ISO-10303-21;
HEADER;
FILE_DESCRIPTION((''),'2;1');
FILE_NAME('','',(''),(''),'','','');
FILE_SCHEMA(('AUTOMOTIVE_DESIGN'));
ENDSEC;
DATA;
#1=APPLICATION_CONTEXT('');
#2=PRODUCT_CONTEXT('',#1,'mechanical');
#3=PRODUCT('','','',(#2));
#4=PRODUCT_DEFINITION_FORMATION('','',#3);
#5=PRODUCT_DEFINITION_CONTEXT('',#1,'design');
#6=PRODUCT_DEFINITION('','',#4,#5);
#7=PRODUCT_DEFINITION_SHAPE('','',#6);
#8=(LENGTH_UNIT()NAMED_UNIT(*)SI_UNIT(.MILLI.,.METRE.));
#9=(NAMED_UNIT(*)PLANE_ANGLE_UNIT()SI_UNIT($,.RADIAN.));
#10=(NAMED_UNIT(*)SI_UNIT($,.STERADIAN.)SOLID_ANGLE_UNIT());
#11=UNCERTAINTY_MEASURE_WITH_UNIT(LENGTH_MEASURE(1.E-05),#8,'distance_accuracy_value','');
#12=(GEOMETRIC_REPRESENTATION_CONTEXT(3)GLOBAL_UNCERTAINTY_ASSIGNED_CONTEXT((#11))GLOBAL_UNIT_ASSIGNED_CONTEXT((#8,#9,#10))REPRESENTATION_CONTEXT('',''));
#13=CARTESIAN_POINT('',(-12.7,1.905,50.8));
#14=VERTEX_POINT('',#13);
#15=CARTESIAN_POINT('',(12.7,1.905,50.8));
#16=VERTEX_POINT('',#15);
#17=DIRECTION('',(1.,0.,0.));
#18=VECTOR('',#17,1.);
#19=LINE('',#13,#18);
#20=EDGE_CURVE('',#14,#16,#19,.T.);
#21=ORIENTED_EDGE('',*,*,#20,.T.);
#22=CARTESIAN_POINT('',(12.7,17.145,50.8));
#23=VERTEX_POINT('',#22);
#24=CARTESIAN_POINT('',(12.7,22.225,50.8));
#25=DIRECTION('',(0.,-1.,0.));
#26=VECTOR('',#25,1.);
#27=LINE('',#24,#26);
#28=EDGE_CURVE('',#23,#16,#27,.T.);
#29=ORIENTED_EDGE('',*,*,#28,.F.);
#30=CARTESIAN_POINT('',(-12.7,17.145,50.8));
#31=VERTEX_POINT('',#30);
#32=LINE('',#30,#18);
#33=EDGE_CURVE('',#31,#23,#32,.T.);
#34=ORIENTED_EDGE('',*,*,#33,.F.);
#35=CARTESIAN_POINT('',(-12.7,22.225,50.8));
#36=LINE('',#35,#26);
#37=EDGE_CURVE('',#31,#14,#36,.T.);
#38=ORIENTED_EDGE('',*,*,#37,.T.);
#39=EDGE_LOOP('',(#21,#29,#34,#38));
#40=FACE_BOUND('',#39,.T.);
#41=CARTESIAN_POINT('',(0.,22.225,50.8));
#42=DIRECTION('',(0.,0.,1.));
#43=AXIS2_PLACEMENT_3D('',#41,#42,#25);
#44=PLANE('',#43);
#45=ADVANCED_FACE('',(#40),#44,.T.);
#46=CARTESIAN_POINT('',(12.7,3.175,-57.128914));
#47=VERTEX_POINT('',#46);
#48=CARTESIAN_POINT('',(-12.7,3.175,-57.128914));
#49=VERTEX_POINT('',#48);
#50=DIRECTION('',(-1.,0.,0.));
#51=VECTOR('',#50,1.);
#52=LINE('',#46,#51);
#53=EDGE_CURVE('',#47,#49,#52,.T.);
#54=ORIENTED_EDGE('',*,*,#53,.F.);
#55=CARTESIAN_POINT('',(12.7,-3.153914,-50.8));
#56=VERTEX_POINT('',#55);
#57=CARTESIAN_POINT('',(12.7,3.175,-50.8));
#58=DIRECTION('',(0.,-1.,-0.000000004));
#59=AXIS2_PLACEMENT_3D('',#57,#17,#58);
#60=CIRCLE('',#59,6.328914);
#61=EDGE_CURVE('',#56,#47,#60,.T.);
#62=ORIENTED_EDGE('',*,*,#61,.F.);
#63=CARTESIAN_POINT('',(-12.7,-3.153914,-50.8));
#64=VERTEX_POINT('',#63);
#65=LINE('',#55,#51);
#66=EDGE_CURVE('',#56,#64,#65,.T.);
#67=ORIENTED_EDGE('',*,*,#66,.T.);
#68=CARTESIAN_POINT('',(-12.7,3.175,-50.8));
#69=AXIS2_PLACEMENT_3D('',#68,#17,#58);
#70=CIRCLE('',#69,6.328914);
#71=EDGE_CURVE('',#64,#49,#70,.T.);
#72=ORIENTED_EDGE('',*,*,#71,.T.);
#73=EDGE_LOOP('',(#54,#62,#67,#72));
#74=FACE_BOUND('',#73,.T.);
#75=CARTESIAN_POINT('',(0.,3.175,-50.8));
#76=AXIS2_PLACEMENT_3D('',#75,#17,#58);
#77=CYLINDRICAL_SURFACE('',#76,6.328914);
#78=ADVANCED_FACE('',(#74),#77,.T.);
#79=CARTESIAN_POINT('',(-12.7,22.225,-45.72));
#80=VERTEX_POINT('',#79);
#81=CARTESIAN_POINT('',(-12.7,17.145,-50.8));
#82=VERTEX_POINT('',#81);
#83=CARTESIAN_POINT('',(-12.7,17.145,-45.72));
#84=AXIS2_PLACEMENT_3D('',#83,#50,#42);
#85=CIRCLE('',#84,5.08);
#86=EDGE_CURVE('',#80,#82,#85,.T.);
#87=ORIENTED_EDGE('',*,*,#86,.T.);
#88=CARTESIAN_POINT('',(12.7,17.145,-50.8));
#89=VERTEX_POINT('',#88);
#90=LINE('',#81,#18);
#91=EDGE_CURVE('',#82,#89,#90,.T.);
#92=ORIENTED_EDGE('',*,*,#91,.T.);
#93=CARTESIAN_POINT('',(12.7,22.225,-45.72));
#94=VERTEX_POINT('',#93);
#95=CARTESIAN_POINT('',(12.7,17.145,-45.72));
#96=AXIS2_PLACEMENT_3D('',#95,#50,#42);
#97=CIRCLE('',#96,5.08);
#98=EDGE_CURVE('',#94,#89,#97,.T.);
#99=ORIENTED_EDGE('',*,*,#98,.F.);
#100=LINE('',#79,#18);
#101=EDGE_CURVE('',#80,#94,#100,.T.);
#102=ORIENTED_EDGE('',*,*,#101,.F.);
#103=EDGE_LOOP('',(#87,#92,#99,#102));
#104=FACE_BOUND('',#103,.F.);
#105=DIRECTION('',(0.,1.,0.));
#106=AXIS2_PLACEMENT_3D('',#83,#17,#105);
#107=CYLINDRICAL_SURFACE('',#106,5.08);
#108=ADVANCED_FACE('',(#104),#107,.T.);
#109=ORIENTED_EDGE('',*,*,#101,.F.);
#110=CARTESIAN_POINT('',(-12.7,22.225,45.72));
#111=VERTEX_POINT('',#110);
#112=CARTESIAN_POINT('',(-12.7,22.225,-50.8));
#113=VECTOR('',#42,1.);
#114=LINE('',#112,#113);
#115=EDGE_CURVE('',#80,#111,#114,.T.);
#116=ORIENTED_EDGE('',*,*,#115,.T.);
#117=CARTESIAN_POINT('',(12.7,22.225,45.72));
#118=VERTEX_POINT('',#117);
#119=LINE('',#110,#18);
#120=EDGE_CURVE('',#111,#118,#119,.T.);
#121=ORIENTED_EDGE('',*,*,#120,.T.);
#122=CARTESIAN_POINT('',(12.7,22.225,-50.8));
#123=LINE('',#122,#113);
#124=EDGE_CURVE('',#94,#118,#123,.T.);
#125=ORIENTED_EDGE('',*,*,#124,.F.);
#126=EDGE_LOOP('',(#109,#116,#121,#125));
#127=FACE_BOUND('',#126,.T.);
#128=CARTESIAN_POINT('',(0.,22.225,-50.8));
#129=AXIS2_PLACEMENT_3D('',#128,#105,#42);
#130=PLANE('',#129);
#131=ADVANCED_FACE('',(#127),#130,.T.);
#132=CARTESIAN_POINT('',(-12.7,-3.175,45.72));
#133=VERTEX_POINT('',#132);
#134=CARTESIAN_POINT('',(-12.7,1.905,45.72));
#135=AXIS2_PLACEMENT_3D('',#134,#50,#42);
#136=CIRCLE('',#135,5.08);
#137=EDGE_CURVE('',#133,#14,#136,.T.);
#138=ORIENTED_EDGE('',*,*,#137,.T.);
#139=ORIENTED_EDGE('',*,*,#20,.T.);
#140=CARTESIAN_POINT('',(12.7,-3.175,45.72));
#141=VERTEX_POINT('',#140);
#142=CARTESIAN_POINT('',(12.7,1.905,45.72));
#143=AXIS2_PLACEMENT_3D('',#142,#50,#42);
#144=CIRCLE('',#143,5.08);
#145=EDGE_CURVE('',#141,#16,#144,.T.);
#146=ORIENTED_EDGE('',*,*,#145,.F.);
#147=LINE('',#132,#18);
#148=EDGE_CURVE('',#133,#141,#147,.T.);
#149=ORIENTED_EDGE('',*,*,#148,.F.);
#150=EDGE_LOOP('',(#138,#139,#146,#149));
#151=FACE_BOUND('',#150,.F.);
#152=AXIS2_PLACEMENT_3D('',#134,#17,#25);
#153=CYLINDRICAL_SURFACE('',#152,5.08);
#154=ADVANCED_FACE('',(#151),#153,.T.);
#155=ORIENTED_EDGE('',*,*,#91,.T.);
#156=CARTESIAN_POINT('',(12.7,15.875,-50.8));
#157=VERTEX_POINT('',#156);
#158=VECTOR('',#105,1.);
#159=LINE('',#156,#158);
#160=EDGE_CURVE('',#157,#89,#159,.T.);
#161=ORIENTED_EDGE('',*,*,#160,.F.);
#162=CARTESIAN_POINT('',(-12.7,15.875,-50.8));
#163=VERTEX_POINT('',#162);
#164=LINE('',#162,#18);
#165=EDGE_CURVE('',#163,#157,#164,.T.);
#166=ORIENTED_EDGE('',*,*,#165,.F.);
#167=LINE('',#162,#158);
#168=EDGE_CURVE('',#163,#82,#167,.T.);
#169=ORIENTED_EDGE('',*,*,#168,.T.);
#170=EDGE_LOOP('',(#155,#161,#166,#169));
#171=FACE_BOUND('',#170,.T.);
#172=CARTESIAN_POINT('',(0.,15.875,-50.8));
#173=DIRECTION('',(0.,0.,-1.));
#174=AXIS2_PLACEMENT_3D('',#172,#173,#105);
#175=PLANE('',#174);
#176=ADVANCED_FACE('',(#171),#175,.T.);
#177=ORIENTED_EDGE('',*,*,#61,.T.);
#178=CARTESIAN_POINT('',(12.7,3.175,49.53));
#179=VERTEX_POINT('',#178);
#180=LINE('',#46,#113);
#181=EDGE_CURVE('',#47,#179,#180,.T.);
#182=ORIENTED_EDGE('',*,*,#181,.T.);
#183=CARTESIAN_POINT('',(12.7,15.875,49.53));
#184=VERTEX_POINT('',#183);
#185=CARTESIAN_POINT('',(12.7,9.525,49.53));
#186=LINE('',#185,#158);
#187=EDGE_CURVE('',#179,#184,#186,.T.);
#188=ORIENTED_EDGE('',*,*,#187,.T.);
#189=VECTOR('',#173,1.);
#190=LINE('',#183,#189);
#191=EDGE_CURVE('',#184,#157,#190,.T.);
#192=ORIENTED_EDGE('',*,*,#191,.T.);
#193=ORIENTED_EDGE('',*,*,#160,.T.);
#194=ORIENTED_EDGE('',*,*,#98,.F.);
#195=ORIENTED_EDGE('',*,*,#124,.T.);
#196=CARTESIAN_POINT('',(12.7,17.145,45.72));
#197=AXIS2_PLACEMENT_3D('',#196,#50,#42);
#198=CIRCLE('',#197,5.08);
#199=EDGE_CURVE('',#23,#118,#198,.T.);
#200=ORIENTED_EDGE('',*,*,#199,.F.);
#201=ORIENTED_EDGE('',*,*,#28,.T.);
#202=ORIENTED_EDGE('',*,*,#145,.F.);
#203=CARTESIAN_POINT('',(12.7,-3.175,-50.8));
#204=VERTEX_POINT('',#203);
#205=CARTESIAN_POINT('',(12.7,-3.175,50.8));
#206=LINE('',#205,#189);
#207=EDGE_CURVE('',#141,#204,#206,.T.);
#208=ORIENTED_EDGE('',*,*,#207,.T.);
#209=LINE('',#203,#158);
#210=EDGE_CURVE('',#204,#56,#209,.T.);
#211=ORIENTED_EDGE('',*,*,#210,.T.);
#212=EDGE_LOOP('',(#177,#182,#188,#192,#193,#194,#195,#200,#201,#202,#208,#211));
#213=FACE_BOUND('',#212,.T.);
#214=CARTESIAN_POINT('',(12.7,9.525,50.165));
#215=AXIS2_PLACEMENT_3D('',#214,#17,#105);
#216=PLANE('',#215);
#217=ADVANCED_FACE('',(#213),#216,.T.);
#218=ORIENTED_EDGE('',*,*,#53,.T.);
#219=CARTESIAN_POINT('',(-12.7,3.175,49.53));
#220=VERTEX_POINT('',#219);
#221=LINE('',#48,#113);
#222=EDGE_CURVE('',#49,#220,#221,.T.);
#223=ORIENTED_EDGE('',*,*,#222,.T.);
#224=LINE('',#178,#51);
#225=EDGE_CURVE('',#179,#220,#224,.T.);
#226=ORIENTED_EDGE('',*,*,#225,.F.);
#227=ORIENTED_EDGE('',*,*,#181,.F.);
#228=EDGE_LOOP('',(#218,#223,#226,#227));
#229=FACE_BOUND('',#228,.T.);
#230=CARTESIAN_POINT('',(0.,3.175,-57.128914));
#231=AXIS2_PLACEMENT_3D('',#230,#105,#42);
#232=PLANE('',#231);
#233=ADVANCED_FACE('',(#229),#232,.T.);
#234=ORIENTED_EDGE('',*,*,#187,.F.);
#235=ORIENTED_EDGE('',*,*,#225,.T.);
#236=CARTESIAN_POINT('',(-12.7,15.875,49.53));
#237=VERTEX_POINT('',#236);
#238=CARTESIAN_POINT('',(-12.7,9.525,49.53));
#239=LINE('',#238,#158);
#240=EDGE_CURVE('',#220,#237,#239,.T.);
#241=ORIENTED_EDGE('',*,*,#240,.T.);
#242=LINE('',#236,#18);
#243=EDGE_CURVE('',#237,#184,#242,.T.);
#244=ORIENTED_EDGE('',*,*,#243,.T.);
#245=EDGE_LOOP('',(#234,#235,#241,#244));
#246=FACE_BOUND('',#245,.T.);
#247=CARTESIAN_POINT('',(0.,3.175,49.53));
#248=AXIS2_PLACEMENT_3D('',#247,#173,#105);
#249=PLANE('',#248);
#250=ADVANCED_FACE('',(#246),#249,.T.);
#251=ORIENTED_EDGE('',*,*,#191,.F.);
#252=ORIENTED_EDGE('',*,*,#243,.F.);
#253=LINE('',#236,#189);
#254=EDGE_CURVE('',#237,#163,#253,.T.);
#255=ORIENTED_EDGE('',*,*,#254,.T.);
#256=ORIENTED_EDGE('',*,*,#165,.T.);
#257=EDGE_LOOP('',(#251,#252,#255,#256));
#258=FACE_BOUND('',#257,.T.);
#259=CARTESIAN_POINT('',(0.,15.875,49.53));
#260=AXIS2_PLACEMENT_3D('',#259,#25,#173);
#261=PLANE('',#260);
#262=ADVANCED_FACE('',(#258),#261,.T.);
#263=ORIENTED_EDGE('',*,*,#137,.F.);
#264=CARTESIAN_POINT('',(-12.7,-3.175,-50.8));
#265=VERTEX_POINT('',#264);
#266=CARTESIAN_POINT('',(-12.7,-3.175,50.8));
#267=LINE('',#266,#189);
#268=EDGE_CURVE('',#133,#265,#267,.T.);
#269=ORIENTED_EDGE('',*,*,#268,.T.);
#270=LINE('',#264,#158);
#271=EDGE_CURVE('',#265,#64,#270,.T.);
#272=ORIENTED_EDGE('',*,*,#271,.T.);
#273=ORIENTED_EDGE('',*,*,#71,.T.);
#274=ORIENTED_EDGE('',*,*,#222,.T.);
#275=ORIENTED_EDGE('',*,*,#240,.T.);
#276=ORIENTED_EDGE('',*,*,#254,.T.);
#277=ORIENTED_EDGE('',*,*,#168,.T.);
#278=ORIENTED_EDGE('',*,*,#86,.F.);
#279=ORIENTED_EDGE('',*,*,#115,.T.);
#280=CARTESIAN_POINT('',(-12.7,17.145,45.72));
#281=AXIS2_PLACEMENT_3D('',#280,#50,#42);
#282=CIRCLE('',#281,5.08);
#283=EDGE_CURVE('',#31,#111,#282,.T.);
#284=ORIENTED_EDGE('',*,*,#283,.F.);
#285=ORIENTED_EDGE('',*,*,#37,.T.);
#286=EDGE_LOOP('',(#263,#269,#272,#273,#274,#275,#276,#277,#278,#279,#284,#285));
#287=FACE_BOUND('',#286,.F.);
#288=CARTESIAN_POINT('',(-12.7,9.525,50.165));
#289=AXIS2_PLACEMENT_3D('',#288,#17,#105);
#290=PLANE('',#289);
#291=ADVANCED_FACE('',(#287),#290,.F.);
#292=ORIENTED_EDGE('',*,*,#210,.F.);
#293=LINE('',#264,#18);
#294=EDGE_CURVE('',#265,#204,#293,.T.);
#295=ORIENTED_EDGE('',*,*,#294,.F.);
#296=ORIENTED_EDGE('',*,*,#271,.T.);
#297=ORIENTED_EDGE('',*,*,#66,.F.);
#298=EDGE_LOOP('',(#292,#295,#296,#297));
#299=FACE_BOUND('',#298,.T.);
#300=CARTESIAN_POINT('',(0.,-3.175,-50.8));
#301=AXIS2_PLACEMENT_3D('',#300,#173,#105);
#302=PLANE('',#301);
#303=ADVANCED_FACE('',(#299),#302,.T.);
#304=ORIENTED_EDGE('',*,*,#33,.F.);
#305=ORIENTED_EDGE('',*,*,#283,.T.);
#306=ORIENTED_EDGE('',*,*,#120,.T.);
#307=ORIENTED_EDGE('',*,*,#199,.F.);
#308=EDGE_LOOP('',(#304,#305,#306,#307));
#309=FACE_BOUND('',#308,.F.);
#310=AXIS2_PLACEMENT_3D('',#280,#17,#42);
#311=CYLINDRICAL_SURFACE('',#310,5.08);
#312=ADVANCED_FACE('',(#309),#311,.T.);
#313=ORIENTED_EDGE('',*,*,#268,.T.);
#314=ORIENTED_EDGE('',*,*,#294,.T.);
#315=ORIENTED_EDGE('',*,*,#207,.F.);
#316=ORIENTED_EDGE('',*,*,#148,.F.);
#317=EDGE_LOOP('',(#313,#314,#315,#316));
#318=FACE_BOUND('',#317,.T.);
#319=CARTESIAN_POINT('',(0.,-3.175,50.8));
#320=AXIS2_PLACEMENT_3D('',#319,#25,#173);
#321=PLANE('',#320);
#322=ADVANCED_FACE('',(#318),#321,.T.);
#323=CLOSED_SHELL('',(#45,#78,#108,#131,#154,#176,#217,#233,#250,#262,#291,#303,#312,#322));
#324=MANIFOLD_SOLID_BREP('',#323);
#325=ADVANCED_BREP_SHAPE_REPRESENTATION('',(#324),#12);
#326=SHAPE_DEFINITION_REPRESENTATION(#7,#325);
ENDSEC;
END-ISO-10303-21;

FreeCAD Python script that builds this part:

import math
import FreeCAD as App
import Part
import Sketcher

V = App.Vector
Q = App.Units.Quantity


def edges_at(feature, points):
    """Names of the edges that pass closest to the given points."""
    edges = feature.Shape.Edges
    near = lambda p: min(range(len(edges)), key=lambda i: edges[i].distToShape(Part.Vertex(*p))[0])
    return sorted({f"Edge{near(p) + 1}" for p in points})

doc = App.newDocument("Part")
body = doc.addObject("PartDesign::Body", "Body")

sketch1 = doc.addObject("Sketcher::SketchObject", "Sketch")
body.addObject(sketch1)
sketch1.AttachmentSupport = (doc.YZ_Plane, [""])
sketch1.MapMode = "FlatFace"
sketch1.addGeometry(Part.LineSegment(V(3.175, 49.53, 0), V(15.875, 49.53, 0)), False)
sketch1.addGeometry(Part.LineSegment(V(15.875, 49.53, 0), V(15.875, -50.8, 0)), False)
sketch1.addGeometry(Part.LineSegment(V(15.875, -50.8, 0), V(22.225, -50.8, 0)), False)
sketch1.addGeometry(Part.LineSegment(V(22.225, -50.8, 0), V(22.225, 50.8, 0)), False)
sketch1.addGeometry(Part.LineSegment(V(22.225, 50.8, 0), V(-3.175, 50.8, 0)), False)
sketch1.addGeometry(Part.LineSegment(V(-3.175, 50.8, 0), V(-3.175, -50.8, 0)), False)
sketch1.addGeometry(Part.LineSegment(V(-3.175, -50.8, 0), V(-3.154, -50.8, 0)), False)
sketch1.addGeometry(Part.ArcOfCircle(Part.Circle(V(3.175, -50.8, 0), V(0, 0, 1), 6.329), math.radians(-180), math.radians(-90)), False)
sketch1.addGeometry(Part.LineSegment(V(3.175, -57.129, 0), V(3.175, 49.53, 0)), False)
sketch1.addConstraint(Sketcher.Constraint("Coincident", 0, 2, 1, 1))
sketch1.addConstraint(Sketcher.Constraint("Coincident", 1, 2, 2, 1))
sketch1.addConstraint(Sketcher.Constraint("Coincident", 2, 2, 3, 1))
sketch1.addConstraint(Sketcher.Constraint("Coincident", 3, 2, 4, 1))
sketch1.addConstraint(Sketcher.Constraint("Coincident", 4, 2, 5, 1))
sketch1.addConstraint(Sketcher.Constraint("Coincident", 5, 2, 6, 1))
sketch1.addConstraint(Sketcher.Constraint("Coincident", 6, 2, 7, 1))
sketch1.addConstraint(Sketcher.Constraint("Coincident", 7, 2, 8, 1))
sketch1.addConstraint(Sketcher.Constraint("Coincident", 8, 2, 0, 1))
sketch1.addConstraint(Sketcher.Constraint("Horizontal", 0))
sketch1.addConstraint(Sketcher.Constraint("Vertical", 1))
sketch1.addConstraint(Sketcher.Constraint("Horizontal", 2))
sketch1.addConstraint(Sketcher.Constraint("Vertical", 3))
sketch1.addConstraint(Sketcher.Constraint("Horizontal", 4))
sketch1.addConstraint(Sketcher.Constraint("Vertical", 5))
sketch1.addConstraint(Sketcher.Constraint("Horizontal", 6))
sketch1.addConstraint(Sketcher.Constraint("Vertical", 8))
sketch1.addConstraint(Sketcher.Constraint("Horizontal", 7, 3, 1, 2))
sketch1.addConstraint(Sketcher.Constraint("Horizontal", 2, 2, 5, 2))
sketch1.addConstraint(Sketcher.Constraint("DistanceX", 4, 2, 4, 1, Q("1 in")))
sketch1.addConstraint(Sketcher.Constraint("DistanceY", 3, 1, 3, 2, Q("4 in")))
sketch1.addConstraint(Sketcher.Constraint("DistanceX", 0, 1, 0, 2, Q("0.5 in")))
sketch1.addConstraint(Sketcher.Constraint("DistanceY", 7, 3, -1, 1, Q("2 in")))
sketch1.addConstraint(Sketcher.Constraint("DistanceX", 2, 1, 2, 2, Q("0.25 in")))
sketch1.addConstraint(Sketcher.Constraint("DistanceY", 1, 2, 1, 1, Q("3.95 in")))
sketch1.addConstraint(Sketcher.Constraint("DistanceX", 7, 3, 0, 2, Q("0.5 in")))
sketch1.addConstraint(Sketcher.Constraint("DistanceX", -1, 1, 7, 3, Q("0.125 in")))
sketch1.addConstraint(Sketcher.Constraint("Radius", 7, Q("6.328914 mm")))
pad1 = doc.addObject("PartDesign::Pad", "Pad")
body.addObject(pad1)
pad1.Profile = sketch1
pad1.Length = Q("1 in")
pad1.Midplane = True
doc.recompute()

fillet = doc.addObject("PartDesign::Fillet", "Fillet")
body.addObject(fillet)
fillet.Base = (pad1, edges_at(pad1, [(0, 22.225, 50.8), (0, -3.175, 50.8), (0, 22.225, -50.8)]))
fillet.Radius = Q("0.2 in")

doc.recompute()
